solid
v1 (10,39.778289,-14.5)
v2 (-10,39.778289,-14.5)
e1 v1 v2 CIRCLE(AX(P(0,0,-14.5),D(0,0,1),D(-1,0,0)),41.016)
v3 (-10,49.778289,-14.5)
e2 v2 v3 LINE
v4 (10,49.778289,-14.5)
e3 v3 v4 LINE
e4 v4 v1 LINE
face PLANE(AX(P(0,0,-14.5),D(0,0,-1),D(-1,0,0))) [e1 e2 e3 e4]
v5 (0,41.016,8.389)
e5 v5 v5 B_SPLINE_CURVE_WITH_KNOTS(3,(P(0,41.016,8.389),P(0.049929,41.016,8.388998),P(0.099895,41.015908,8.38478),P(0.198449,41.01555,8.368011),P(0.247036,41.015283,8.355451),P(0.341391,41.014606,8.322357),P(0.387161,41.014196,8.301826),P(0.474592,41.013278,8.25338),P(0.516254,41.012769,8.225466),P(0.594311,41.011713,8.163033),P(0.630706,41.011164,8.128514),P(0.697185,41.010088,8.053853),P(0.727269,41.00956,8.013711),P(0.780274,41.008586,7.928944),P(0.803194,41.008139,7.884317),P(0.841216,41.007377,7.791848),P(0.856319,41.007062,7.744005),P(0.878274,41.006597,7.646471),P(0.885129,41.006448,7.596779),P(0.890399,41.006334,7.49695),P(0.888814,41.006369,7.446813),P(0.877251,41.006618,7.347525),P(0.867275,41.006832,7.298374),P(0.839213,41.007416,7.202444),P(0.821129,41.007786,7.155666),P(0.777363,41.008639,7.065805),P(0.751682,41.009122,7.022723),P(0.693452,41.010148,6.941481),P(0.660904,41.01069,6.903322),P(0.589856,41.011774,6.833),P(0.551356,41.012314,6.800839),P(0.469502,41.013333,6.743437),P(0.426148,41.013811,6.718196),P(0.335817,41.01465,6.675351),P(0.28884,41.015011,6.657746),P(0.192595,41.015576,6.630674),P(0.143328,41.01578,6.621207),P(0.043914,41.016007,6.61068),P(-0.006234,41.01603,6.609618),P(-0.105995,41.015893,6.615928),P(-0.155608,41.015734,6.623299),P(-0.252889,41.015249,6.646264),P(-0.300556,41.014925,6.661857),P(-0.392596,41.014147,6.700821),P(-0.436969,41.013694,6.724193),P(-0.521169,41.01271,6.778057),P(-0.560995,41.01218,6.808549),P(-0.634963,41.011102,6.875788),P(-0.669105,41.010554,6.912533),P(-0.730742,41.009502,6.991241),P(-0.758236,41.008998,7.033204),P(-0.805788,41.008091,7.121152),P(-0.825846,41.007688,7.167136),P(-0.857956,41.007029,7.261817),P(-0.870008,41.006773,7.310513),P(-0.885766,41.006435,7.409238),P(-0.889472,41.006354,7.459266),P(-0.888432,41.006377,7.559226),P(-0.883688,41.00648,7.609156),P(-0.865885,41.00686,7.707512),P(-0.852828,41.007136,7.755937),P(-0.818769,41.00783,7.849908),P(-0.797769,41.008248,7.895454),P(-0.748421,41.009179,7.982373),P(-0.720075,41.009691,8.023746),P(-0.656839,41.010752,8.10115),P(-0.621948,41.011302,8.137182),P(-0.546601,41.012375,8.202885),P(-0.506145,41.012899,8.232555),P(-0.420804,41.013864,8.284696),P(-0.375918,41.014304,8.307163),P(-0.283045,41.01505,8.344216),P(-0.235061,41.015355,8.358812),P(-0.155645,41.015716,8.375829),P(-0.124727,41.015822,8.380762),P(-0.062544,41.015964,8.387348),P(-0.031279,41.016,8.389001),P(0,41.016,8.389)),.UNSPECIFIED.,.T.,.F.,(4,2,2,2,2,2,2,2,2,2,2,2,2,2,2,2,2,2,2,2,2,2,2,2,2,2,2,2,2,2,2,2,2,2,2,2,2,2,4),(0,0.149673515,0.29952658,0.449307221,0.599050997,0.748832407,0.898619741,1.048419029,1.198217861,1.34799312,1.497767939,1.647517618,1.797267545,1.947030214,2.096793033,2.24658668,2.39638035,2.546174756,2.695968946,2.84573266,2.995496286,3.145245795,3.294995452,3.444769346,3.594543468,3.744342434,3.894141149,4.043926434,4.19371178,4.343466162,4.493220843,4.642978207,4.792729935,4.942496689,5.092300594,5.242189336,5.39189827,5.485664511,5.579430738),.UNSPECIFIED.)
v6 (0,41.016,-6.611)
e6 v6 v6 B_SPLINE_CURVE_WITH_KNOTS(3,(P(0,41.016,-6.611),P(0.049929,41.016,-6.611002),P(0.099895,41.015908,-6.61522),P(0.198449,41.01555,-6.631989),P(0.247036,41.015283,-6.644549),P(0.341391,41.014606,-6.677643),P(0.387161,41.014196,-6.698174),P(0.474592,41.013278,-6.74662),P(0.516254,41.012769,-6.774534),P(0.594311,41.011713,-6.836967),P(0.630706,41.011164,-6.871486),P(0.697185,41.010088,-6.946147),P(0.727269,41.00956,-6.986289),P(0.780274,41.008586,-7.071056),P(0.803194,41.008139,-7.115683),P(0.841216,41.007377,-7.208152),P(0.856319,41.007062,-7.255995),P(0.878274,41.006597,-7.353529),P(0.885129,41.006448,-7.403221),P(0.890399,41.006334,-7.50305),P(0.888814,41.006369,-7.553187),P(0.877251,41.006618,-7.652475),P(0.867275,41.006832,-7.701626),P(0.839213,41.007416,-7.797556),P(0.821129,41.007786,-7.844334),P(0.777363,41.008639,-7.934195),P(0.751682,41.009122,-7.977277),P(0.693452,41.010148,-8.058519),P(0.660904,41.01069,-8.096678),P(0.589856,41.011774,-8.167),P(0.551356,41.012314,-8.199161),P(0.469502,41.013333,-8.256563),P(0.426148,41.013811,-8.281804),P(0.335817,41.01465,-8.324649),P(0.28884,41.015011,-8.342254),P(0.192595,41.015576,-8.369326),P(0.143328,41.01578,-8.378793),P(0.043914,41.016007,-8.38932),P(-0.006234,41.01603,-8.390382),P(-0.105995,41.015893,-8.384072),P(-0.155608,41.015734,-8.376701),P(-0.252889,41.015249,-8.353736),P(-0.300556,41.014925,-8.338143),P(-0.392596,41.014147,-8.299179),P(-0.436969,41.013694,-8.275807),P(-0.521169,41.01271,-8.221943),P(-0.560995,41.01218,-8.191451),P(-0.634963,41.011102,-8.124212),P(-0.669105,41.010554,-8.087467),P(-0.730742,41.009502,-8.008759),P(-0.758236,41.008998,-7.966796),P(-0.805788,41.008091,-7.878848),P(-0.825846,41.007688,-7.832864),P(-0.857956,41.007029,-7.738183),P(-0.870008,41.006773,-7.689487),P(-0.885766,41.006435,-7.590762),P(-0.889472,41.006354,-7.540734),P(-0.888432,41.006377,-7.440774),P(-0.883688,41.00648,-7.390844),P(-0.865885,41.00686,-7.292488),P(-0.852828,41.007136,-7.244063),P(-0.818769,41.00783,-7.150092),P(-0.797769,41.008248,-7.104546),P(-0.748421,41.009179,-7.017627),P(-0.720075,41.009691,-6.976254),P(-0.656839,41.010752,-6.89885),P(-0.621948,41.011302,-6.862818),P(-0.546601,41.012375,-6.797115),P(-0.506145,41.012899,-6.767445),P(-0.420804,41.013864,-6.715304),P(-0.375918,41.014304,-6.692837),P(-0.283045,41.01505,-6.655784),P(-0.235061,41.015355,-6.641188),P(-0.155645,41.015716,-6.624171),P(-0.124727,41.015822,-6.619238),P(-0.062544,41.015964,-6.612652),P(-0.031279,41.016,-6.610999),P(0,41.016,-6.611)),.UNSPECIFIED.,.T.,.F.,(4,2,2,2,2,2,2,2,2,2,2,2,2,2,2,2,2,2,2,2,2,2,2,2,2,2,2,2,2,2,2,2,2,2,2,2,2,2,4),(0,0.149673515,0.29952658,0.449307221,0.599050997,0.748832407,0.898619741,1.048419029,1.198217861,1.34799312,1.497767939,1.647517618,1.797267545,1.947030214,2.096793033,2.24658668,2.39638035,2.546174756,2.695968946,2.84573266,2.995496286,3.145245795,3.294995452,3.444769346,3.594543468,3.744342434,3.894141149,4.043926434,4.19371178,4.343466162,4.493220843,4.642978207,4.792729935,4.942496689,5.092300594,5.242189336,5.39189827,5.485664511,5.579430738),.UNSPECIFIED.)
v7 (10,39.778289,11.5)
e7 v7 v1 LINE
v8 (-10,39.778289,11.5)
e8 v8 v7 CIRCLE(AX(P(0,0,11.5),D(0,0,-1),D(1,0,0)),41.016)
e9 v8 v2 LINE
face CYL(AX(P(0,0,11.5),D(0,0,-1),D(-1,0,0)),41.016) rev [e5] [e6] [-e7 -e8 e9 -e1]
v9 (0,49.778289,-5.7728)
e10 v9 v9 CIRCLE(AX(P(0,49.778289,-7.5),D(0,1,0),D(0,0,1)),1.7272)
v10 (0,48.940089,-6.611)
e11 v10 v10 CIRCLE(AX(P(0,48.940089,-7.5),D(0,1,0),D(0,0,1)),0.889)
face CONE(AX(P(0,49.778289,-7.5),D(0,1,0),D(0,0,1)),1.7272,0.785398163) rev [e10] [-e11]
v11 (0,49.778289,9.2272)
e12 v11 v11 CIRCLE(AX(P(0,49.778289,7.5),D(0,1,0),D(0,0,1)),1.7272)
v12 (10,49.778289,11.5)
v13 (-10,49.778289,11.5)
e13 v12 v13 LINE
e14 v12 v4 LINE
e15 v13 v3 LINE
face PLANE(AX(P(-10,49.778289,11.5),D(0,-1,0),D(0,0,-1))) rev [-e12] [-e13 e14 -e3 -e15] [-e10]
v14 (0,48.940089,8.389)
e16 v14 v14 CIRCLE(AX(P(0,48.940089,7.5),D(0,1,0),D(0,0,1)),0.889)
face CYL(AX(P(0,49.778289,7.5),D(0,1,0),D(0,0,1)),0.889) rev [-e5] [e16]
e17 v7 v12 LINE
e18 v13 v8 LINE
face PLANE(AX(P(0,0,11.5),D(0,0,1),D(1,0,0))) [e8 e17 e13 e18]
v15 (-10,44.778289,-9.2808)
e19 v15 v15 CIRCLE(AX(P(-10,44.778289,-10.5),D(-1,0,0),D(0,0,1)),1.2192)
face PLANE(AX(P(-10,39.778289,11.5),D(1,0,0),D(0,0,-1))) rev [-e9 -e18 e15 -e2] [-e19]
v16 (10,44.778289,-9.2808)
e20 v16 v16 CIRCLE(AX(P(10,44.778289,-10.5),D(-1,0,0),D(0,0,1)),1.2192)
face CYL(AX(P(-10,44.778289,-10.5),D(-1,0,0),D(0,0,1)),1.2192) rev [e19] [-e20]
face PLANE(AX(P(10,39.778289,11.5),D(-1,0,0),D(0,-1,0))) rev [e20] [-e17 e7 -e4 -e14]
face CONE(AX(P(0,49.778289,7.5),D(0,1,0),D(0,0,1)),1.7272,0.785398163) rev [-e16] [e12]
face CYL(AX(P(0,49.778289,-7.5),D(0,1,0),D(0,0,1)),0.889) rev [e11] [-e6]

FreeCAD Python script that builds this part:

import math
import FreeCAD as App
import Part
import Sketcher
from FreeCAD import Vector

doc = App.newDocument("Part")
params = doc.addObject("Spreadsheet::Sheet", "Params")
for row, (alias, value) in enumerate([
    ("sketch1_width", "20 mm"),
    ("sketch1_height", "10 mm"),
    ("pad1_length", "23 mm"),
    ("hole_diameter", "1.778 mm"),
    ("hole_csink_diameter", "3.4544 mm"),
    ("sketch3_width", "20 mm"),
    ("sketch3_height", "10 mm"),
    ("pad2_length", "3 mm"),
    ("hole2_diameter", "2.4384 mm"),
], start=1):
    params.set(f"A{row}", alias)
    params.set(f"B{row}", "=" + value)
    params.setAlias(f"B{row}", alias)

body = doc.addObject("PartDesign::Body", "Body")

# Sketch on XY plane
sketch1 = doc.addObject("Sketcher::SketchObject", "Sketch")
body.addObject(sketch1)
sketch1.AttachmentSupport = (doc.XY_Plane, [""])
sketch1.MapMode = "FlatFace"
sketch1.addGeometry([
    Part.LineSegment(Vector(-10, 50, 0), Vector(-10, 40, 0)),
    Part.ArcOfCircle(Part.Circle(Vector(0, 0, 0), Vector(0, 0, 1), 41), math.radians(76), math.radians(104)),
    Part.LineSegment(Vector(10, 40, 0), Vector(10, 50, 0)),
    Part.LineSegment(Vector(10, 50, 0), Vector(-10, 50, 0)),
], False)
sketch1.addConstraint([
    Sketcher.Constraint("Coincident", 0, 2, 1, 2),
    Sketcher.Constraint("Coincident", 1, 1, 2, 1),
    Sketcher.Constraint("Coincident", 2, 2, 3, 1),
    Sketcher.Constraint("Coincident", 3, 2, 0, 1),
    Sketcher.Constraint("Vertical", 0),
    Sketcher.Constraint("Vertical", 2),
    Sketcher.Constraint("Horizontal", 3),
    Sketcher.Constraint("Coincident", 1, 3, -1, 1),
    Sketcher.Constraint("Horizontal", 0, 2, 1, 1),
    Sketcher.Constraint("DistanceX", 3, 2, 3, 1, 20.0),
    Sketcher.Constraint("DistanceY", 0, 2, 0, 1, 10.0),
    Sketcher.Constraint("Radius", 1, 41.016),
])
sketch1.setExpression("Constraints[9]", "Params.sketch1_width")
sketch1.setExpression("Constraints[10]", "Params.sketch1_height")
pad1 = doc.addObject("PartDesign::Pad", "Pad")
body.addObject(pad1)
pad1.Profile = sketch1
pad1.setExpression("Length", "Params.pad1_length")
pad1.Midplane = True

# Sketch on XZ plane
sketch2 = doc.addObject("Sketcher::SketchObject", "Sketch001")
body.addObject(sketch2)
sketch2.AttachmentSupport = (doc.XZ_Plane, [""])
sketch2.MapMode = "FlatFace"
sketch2.AttachmentOffset = App.Placement(Vector(0, 0, -49.778289), App.Rotation())
sketch2.addGeometry([
    Part.Circle(Vector(0, 7.5, 0), Vector(0, 0, 1), 0.9),
    Part.Circle(Vector(0, -7.5, 0), Vector(0, 0, 1), 0.9),
], False)
sketch2.addConstraint([
    Sketcher.Constraint("Equal", 0, 1),
    Sketcher.Constraint("Symmetric", 0, 3, 1, 3, -1, 1),
    Sketcher.Constraint("PointOnObject", 0, 3, -2),
    Sketcher.Constraint("Diameter", 0, 1.778),
    Sketcher.Constraint("DistanceY", 1, 3, 0, 3, 15.0),
])
doc.recompute()
hole = doc.addObject("PartDesign::Hole", "Hole")
body.addObject(hole)
hole.Profile = sketch2
hole.ThreadType = "None"
hole.setExpression("Diameter", "Params.hole_diameter")
hole.DepthType = "ThroughAll"
hole.HoleCutType = "Countersink"
hole.setExpression("HoleCutDiameter", "Params.hole_csink_diameter")
hole.HoleCutCountersinkAngle = 90
hole.Reversed = True

# Sketch on XY plane
sketch3 = doc.addObject("Sketcher::SketchObject", "Sketch002")
body.addObject(sketch3)
sketch3.AttachmentSupport = (doc.XY_Plane, [""])
sketch3.MapMode = "FlatFace"
sketch3.AttachmentOffset = App.Placement(Vector(0, 0, -11.5), App.Rotation())
sketch3.addGeometry([
    Part.LineSegment(Vector(-10, 50, 0), Vector(10, 50, 0)),
    Part.LineSegment(Vector(10, 50, 0), Vector(10, 40, 0)),
    Part.ArcOfCircle(Part.Circle(Vector(0, 0, 0), Vector(0, 0, 1), 41), math.radians(76), math.radians(104)),
    Part.LineSegment(Vector(-10, 40, 0), Vector(-10, 50, 0)),
], False)
sketch3.addConstraint([
    Sketcher.Constraint("Coincident", 0, 2, 1, 1),
    Sketcher.Constraint("Coincident", 1, 2, 2, 1),
    Sketcher.Constraint("Coincident", 2, 2, 3, 1),
    Sketcher.Constraint("Coincident", 3, 2, 0, 1),
    Sketcher.Constraint("Horizontal", 0),
    Sketcher.Constraint("Vertical", 1),
    Sketcher.Constraint("Vertical", 3),
    Sketcher.Constraint("Coincident", 2, 3, -1, 1),
    Sketcher.Constraint("Horizontal", 1, 2, 2, 2),
    Sketcher.Constraint("DistanceX", 0, 1, 0, 2, 20.0),
    Sketcher.Constraint("DistanceY", 1, 2, 1, 1, 10.0),
    Sketcher.Constraint("Radius", 2, 41.016),
])
sketch3.setExpression("Constraints[9]", "Params.sketch3_width")
sketch3.setExpression("Constraints[10]", "Params.sketch3_height")
pad2 = doc.addObject("PartDesign::Pad", "Pad001")
body.addObject(pad2)
pad2.Profile = sketch3
pad2.setExpression("Length", "Params.pad2_length")
pad2.Reversed = True

# Sketch on YZ plane
sketch4 = doc.addObject("Sketcher::SketchObject", "Sketch003")
body.addObject(sketch4)
sketch4.AttachmentSupport = (doc.YZ_Plane, [""])
sketch4.MapMode = "FlatFace"
sketch4.AttachmentOffset = App.Placement(Vector(0, 0, -10), App.Rotation())
sketch4.addGeometry(Part.Circle(Vector(44.8, -10.5, 0), Vector(0, 0, 1), 1.2), False)
sketch4.addConstraint([
    Sketcher.Constraint("Diameter", 0, 2.4384),
    Sketcher.Constraint("DistanceY", 0, 3, -1, 1, 10.5),
    Sketcher.Constraint("DistanceX", -1, 1, 0, 3, 44.778289),
])
doc.recompute()
hole2 = doc.addObject("PartDesign::Hole", "Hole001")
body.addObject(hole2)
hole2.Profile = sketch4
hole2.ThreadType = "None"
hole2.setExpression("Diameter", "Params.hole2_diameter")
hole2.DepthType = "ThroughAll"
hole2.Reversed = True

doc.recompute()
